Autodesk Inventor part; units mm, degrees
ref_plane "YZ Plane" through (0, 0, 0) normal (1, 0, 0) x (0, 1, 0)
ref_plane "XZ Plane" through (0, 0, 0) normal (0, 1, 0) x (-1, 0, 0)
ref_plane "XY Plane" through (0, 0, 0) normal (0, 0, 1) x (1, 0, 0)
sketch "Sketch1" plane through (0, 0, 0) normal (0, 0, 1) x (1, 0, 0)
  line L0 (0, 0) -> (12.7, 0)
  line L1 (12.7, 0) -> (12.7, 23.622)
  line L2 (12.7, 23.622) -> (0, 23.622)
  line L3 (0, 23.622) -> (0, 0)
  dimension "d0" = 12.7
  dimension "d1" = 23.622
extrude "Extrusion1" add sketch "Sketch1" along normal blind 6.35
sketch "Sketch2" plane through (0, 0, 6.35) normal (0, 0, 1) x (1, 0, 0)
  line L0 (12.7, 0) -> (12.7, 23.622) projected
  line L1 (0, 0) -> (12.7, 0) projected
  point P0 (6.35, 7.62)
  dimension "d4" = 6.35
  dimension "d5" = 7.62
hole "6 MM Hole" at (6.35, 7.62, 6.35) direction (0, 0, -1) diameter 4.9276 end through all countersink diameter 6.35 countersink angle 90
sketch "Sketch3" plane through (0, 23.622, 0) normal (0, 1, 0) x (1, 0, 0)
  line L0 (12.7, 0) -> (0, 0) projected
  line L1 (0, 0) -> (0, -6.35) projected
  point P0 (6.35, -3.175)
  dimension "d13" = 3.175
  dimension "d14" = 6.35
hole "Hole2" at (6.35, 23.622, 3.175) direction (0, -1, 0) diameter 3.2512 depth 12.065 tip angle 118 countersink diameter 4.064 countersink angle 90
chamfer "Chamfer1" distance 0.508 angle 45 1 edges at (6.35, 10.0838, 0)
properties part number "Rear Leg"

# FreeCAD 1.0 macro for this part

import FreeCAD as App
import Part
import Sketcher

V = App.Vector
Q = App.Units.Quantity


def edges_at(feature, points):
    """Names of the edges that pass closest to the given points."""
    edges = feature.Shape.Edges
    near = lambda p: min(range(len(edges)), key=lambda i: edges[i].distToShape(Part.Vertex(*p))[0])
    return sorted({f"Edge{near(p) + 1}" for p in points})

doc = App.newDocument("Part")
params = doc.addObject("Spreadsheet::Sheet", "Params")
for row, (alias, value) in enumerate([
    ("sketch1_width", "0.5 in"),
    ("sketch1_height", "0.93 in"),
    ("pad1_length", "0.25 in"),
    ("sketch2_diameter", "0.194 in"),
    ("hole_diameter", "0.194 in"),
    ("hole_csink_diameter", "0.25 in"),
    ("sketch3_diameter", "0.128 in"),
    ("hole2_diameter", "0.128 in"),
    ("hole2_depth", "0.475 in"),
    ("hole2_csink_diameter", "0.16 in"),
    ("chamfer_size", "0.02 in"),
], start=1):
    params.set(f"A{row}", alias)
    params.set(f"B{row}", "=" + value)
    params.setAlias(f"B{row}", alias)

body = doc.addObject("PartDesign::Body", "Body")

sketch1 = doc.addObject("Sketcher::SketchObject", "Sketch")
body.addObject(sketch1)
sketch1.AttachmentSupport = (doc.XY_Plane, [""])
sketch1.MapMode = "FlatFace"
sketch1.addGeometry(Part.LineSegment(V(0, 24, 0), V(0, 0, 0)), False)
sketch1.addGeometry(Part.LineSegment(V(0, 0, 0), V(13, 0, 0)), False)
sketch1.addGeometry(Part.LineSegment(V(13, 0, 0), V(13, 24, 0)), False)
sketch1.addGeometry(Part.LineSegment(V(13, 24, 0), V(0, 24, 0)), False)
sketch1.addConstraint(Sketcher.Constraint("Coincident", 0, 2, 1, 1))
sketch1.addConstraint(Sketcher.Constraint("Coincident", 1, 2, 2, 1))
sketch1.addConstraint(Sketcher.Constraint("Coincident", 2, 2, 3, 1))
sketch1.addConstraint(Sketcher.Constraint("Coincident", 3, 2, 0, 1))
sketch1.addConstraint(Sketcher.Constraint("Vertical", 0))
sketch1.addConstraint(Sketcher.Constraint("Horizontal", 1))
sketch1.addConstraint(Sketcher.Constraint("Vertical", 2))
sketch1.addConstraint(Sketcher.Constraint("Horizontal", 3))
sketch1.addConstraint(Sketcher.Constraint("Coincident", 0, 2, -1, 1))
sketch1.addConstraint(Sketcher.Constraint("DistanceX", 1, 1, 1, 2, Q("0.5 in")))
sketch1.addConstraint(Sketcher.Constraint("DistanceY", 0, 2, 0, 1, Q("0.93 in")))
sketch1.setExpression("Constraints[9]", "Params.sketch1_width")
sketch1.setExpression("Constraints[10]", "Params.sketch1_height")
pad1 = doc.addObject("PartDesign::Pad", "Pad")
body.addObject(pad1)
pad1.Profile = sketch1
pad1.setExpression("Length", "Params.pad1_length")

sketch2 = doc.addObject("Sketcher::SketchObject", "Sketch001")
body.addObject(sketch2)
sketch2.AttachmentSupport = (doc.XY_Plane, [""])
sketch2.MapMode = "FlatFace"
sketch2.AttachmentOffset = App.Placement(V(0, 0, 0.25 * 25.4), App.Rotation())
sketch2.addGeometry(Part.Circle(V(6.3, 7.6, 0), V(0, 0, 1), 2.5), False)
sketch2.addConstraint(Sketcher.Constraint("Diameter", 0, Q("0.194 in")))
sketch2.addConstraint(Sketcher.Constraint("DistanceY", -1, 1, 0, 3, Q("0.3 in")))
sketch2.addConstraint(Sketcher.Constraint("DistanceX", -1, 1, 0, 3, Q("0.25 in")))
sketch2.setExpression("Constraints[0]", "Params.sketch2_diameter")
doc.recompute()
hole = doc.addObject("PartDesign::Hole", "Hole")
body.addObject(hole)
hole.Profile = sketch2
hole.ThreadType = "None"
hole.setExpression("Diameter", "Params.hole_diameter")
hole.DepthType = "ThroughAll"
hole.HoleCutType = "Countersink"
hole.setExpression("HoleCutDiameter", "Params.hole_csink_diameter")
hole.HoleCutCountersinkAngle = 90

sketch3 = doc.addObject("Sketcher::SketchObject", "Sketch002")
body.addObject(sketch3)
sketch3.AttachmentSupport = (doc.XZ_Plane, [""])
sketch3.MapMode = "FlatFace"
sketch3.AttachmentOffset = App.Placement(V(0, 0, -0.93 * 25.4), App.Rotation())
sketch3.addGeometry(Part.Circle(V(6.3, 3.2, 0), V(0, 0, 1), 1.6), False)
sketch3.addConstraint(Sketcher.Constraint("Diameter", 0, Q("0.128 in")))
sketch3.addConstraint(Sketcher.Constraint("DistanceX", -1, 1, 0, 3, Q("0.25 in")))
sketch3.addConstraint(Sketcher.Constraint("DistanceY", -1, 1, 0, 3, Q("0.125 in")))
sketch3.setExpression("Constraints[0]", "Params.sketch3_diameter")
doc.recompute()
hole2 = doc.addObject("PartDesign::Hole", "Hole001")
body.addObject(hole2)
hole2.Profile = sketch3
hole2.ThreadType = "None"
hole2.setExpression("Diameter", "Params.hole2_diameter")
hole2.DepthType = "Dimension"
hole2.setExpression("Depth", "Params.hole2_depth")
hole2.DrillPoint = "Angled"
hole2.DrillPointAngle = 118
hole2.HoleCutType = "Countersink"
hole2.setExpression("HoleCutDiameter", "Params.hole2_csink_diameter")
hole2.HoleCutCountersinkAngle = 90
hole2.Reversed = True
doc.recompute()

chamfer = doc.addObject("PartDesign::Chamfer", "Chamfer")
body.addObject(chamfer)
chamfer.Base = (hole2, edges_at(hole2, [(6.35, 10.084, 0)]))
chamfer.setExpression("Size", "Params.chamfer_size")

doc.recompute()
